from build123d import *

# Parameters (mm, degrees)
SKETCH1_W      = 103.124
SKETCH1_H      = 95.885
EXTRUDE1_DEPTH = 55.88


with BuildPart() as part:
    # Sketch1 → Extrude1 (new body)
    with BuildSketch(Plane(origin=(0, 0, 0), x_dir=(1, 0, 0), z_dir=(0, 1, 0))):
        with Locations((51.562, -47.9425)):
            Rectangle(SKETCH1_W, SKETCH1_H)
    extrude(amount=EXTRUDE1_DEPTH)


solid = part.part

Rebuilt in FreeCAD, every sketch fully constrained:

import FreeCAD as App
import Part
import Sketcher
Q = App.Units.Quantity


def add_polygon(sketch, points):
    """Adds a closed chain of lines whose ends are joined by coincident constraints."""
    first, n = sketch.GeometryCount, len(points)
    for a, b in zip(points, points[1:] + points[:1]):
        sketch.addGeometry(Part.LineSegment(App.Vector(*a, 0), App.Vector(*b, 0)), False)
    for i in range(n):
        sketch.addConstraint(Sketcher.Constraint("Coincident", first + i, 2, first + (i + 1) % n, 1))

doc = App.newDocument("Part")
body = doc.addObject("PartDesign::Body", "Body")

# Sketch on XZ plane
sketch1 = doc.addObject("Sketcher::SketchObject", "Sketch")
body.addObject(sketch1)
sketch1.AttachmentSupport = (doc.XZ_Plane, [""])
sketch1.MapMode = "FlatFace"
add_polygon(sketch1, [(0, 0), (0, 96), (103, 96), (103, 0)])  # lines 0-3
sketch1.addConstraint([
    Sketcher.Constraint("Vertical", 0),
    Sketcher.Constraint("Horizontal", 1),
    Sketcher.Constraint("Vertical", 2),
    Sketcher.Constraint("Horizontal", 3),
    Sketcher.Constraint("Coincident", 3, 2, -1, 1),
    Sketcher.Constraint("DistanceX", 1, 1, 1, 2, Q("4.06 in")),
    Sketcher.Constraint("DistanceY", 0, 1, 0, 2, Q("3.775 in")),
])
pad1 = doc.addObject("PartDesign::Pad", "Pad")
body.addObject(pad1)
pad1.Profile = sketch1
pad1.Length = Q("2.2 in")
pad1.Reversed = True

doc.recompute()
